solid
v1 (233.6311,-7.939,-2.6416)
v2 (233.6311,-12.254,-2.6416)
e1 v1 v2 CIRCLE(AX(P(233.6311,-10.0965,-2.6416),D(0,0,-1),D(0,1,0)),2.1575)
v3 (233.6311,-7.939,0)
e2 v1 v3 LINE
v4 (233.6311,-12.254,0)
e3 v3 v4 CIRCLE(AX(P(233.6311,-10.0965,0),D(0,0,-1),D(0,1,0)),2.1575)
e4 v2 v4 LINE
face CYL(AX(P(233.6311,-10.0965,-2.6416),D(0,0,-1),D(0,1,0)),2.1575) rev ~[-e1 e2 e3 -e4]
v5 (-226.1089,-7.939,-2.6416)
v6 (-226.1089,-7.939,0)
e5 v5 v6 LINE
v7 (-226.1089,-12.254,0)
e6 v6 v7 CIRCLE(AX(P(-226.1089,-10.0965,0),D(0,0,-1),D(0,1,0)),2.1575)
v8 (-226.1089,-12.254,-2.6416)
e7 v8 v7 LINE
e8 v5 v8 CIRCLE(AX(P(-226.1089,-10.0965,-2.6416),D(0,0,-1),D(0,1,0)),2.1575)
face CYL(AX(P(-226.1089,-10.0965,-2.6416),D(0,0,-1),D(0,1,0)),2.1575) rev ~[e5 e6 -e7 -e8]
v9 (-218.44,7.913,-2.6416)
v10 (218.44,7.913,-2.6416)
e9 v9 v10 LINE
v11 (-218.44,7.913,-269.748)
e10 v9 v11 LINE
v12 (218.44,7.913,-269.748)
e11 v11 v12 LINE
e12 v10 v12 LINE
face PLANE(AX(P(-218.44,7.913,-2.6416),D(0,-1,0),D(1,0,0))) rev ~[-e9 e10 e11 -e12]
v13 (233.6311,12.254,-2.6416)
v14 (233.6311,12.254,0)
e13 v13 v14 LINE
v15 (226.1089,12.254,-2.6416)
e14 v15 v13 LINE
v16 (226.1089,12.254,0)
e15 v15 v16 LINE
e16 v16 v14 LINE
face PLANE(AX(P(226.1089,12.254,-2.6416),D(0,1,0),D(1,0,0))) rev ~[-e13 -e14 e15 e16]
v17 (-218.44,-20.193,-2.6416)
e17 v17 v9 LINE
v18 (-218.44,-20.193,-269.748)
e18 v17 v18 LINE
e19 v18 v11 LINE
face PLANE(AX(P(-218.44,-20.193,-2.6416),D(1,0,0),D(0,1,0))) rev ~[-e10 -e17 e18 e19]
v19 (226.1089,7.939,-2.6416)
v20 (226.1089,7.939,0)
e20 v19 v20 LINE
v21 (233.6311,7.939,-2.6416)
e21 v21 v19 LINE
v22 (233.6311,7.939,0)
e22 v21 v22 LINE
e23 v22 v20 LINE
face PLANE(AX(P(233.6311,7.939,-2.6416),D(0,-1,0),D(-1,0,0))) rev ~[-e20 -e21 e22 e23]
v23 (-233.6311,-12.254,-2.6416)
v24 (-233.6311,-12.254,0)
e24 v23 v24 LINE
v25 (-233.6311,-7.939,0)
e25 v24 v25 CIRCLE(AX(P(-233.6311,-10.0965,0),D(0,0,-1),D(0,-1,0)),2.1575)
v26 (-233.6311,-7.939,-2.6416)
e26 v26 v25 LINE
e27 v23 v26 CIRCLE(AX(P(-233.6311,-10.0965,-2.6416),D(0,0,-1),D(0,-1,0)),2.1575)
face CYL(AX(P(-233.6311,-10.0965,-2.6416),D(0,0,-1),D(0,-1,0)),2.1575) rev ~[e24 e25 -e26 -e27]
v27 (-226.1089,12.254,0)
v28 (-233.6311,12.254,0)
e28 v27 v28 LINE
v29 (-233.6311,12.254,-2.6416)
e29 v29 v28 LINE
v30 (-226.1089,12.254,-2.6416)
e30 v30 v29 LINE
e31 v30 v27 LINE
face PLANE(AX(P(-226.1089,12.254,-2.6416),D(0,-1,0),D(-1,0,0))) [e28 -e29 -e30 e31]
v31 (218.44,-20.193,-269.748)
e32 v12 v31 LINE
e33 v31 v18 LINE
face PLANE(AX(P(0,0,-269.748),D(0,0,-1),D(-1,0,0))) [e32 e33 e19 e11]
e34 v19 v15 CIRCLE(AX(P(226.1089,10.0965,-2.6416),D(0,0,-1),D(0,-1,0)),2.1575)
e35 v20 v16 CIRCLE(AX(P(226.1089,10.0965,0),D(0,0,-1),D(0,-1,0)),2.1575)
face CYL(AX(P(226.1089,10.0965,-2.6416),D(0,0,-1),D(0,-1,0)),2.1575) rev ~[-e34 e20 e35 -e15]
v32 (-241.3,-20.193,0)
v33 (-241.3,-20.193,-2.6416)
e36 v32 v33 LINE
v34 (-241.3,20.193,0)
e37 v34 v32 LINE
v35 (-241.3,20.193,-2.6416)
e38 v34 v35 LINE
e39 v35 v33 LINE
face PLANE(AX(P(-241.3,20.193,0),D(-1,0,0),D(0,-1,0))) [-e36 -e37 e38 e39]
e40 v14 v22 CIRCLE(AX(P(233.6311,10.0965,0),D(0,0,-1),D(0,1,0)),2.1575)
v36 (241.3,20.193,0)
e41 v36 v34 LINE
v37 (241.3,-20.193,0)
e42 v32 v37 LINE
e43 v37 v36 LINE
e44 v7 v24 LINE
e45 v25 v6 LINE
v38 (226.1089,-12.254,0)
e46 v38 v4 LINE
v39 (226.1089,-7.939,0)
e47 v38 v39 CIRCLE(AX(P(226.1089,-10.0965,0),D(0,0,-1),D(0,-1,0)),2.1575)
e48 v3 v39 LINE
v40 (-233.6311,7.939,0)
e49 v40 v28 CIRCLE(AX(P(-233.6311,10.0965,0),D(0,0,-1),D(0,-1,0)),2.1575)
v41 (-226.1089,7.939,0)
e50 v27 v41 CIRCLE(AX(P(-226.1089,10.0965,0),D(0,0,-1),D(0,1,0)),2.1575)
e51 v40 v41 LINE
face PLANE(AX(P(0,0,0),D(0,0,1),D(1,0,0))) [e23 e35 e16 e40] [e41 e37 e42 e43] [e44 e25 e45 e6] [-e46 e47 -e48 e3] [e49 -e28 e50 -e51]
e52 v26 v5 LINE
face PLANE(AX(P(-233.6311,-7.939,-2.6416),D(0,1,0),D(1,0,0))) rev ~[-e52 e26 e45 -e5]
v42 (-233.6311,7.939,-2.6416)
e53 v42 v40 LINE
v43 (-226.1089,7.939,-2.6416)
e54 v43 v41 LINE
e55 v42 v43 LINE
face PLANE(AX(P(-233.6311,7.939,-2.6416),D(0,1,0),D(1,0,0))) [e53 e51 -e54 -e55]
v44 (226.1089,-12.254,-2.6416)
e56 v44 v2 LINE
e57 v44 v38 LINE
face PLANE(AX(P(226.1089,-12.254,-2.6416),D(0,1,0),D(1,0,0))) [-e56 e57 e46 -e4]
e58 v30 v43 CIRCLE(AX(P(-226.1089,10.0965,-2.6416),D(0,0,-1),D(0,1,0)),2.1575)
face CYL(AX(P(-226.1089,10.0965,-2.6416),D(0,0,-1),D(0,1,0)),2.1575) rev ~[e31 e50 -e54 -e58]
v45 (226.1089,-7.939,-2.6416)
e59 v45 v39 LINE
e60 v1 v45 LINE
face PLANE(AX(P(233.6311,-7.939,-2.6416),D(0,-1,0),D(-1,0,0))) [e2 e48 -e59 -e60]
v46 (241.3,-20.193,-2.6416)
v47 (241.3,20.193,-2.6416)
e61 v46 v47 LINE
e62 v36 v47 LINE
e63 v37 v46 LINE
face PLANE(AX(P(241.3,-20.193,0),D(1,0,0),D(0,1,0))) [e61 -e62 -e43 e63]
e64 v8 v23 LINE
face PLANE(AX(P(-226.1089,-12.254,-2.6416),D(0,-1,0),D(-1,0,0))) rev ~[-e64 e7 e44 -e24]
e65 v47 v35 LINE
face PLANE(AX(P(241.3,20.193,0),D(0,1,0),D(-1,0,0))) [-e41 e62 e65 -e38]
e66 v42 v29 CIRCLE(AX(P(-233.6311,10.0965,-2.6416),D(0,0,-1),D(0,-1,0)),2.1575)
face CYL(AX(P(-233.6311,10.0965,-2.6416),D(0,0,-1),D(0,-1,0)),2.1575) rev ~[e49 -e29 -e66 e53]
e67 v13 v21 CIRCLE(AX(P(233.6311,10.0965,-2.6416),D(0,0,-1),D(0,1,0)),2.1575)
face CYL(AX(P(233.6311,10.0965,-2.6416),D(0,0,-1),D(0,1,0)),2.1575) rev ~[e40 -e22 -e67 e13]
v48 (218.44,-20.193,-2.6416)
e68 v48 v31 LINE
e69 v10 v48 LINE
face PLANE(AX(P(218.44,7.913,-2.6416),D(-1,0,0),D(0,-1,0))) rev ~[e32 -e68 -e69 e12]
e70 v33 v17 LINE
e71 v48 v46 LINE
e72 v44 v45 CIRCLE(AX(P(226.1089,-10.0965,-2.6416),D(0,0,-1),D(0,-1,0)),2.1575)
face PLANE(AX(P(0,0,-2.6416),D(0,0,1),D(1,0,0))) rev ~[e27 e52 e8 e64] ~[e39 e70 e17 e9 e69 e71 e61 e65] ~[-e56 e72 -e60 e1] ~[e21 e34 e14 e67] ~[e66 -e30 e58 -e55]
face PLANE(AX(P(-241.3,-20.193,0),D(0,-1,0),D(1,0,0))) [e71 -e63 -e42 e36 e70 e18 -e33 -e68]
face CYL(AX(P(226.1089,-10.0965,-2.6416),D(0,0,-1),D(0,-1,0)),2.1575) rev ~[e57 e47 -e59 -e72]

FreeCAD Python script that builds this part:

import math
import FreeCAD as App
import Part
import Sketcher
Q = App.Units.Quantity


def add_polygon(sketch, points):
    """Adds a closed chain of lines whose ends are joined by coincident constraints."""
    first, n = sketch.GeometryCount, len(points)
    for a, b in zip(points, points[1:] + points[:1]):
        sketch.addGeometry(Part.LineSegment(App.Vector(*a, 0), App.Vector(*b, 0)), False)
    for i in range(n):
        sketch.addConstraint(Sketcher.Constraint("Coincident", first + i, 2, first + (i + 1) % n, 1))

doc = App.newDocument("Part")
body = doc.addObject("PartDesign::Body", "Body")

sketch1 = body.newObject("Sketcher::SketchObject", "Sketch")
sketch1.AttachmentSupport = (doc.getObject("XY_Plane"), [""])
sketch1.MapMode = "FlatFace"
add_polygon(sketch1, [(-241, 20), (-241, -20), (241, -20), (241, 20)])
sketch1.addConstraint(Sketcher.Constraint("Vertical", 0))
sketch1.addConstraint(Sketcher.Constraint("Horizontal", 1))
sketch1.addConstraint(Sketcher.Constraint("Vertical", 2))
sketch1.addConstraint(Sketcher.Constraint("Horizontal", 3))
sketch1.addConstraint(Sketcher.Constraint("Symmetric", 0, 2, 2, 2, -1, 1))
sketch1.addConstraint(Sketcher.Constraint("DistanceX", 1, 1, 1, 2, Q("19 in")))
sketch1.addConstraint(Sketcher.Constraint("DistanceY", 0, 2, 0, 1, Q("1.59 in")))
pad1 = body.newObject("PartDesign::Pad", "Pad")
pad1.Profile = sketch1
pad1.Length = Q("0.104 in")
pad1.Reversed = True

sketch2 = body.newObject("Sketcher::SketchObject", "Sketch001")
sketch2.AttachmentSupport = (doc.getObject("XY_Plane"), [""])
sketch2.MapMode = "FlatFace"
sketch2.AttachmentOffset = App.Placement(App.Vector(0, 0, -0.104 * 25.4), App.Rotation())
add_polygon(sketch2, [(218, 8), (218, -20), (-218, -20), (-218, 8)])
sketch2.addConstraint(Sketcher.Constraint("Vertical", 0))
sketch2.addConstraint(Sketcher.Constraint("Horizontal", 1))
sketch2.addConstraint(Sketcher.Constraint("Vertical", 2))
sketch2.addConstraint(Sketcher.Constraint("Horizontal", 3))
sketch2.addConstraint(Sketcher.Constraint("DistanceX", 1, 2, 1, 1, Q("17.2 in")))
sketch2.addConstraint(Sketcher.Constraint("DistanceX", -1, 1, 0, 2, Q("8.6 in")))
sketch2.addConstraint(Sketcher.Constraint("DistanceY", 0, 2, -1, 1, Q("0.795 in")))
sketch2.addConstraint(Sketcher.Constraint("DistanceY", 0, 2, 0, 1, 28.106))
pad2 = body.newObject("PartDesign::Pad", "Pad001")
pad2.Profile = sketch2
pad2.Length = Q("10.516 in")
pad2.Reversed = True

sketch3 = body.newObject("Sketcher::SketchObject", "Sketch002")
sketch3.AttachmentSupport = (doc.getObject("XY_Plane"), [""])
sketch3.MapMode = "FlatFace"
sketch3.AttachmentOffset = App.Placement(App.Vector(0, 0, -0.104 * 25.4), App.Rotation())
sketch3.addGeometry(Part.ArcOfCircle(Part.Circle(App.Vector(233.6, 10.1, 0), App.Vector(0, 0, 1), 2.2), math.radians(-90), math.radians(90)), False)
sketch3.addGeometry(Part.LineSegment(App.Vector(233.6, 7.9, 0), App.Vector(226.1, 7.9, 0)), False)
sketch3.addGeometry(Part.ArcOfCircle(Part.Circle(App.Vector(226.1, 10.1, 0), App.Vector(0, 0, 1), 2.2), math.radians(90), math.radians(270)), False)
sketch3.addGeometry(Part.LineSegment(App.Vector(226.1, 12.3, 0), App.Vector(233.6, 12.3, 0)), False)
sketch3.addGeometry(Part.LineSegment(App.Vector(226.1, -7.9, 0), App.Vector(233.6, -7.9, 0)), False)
sketch3.addGeometry(Part.ArcOfCircle(Part.Circle(App.Vector(233.6, -10.1, 0), App.Vector(0, 0, 1), 2.2), math.radians(-90), math.radians(90)), False)
sketch3.addGeometry(Part.LineSegment(App.Vector(233.6, -12.3, 0), App.Vector(226.1, -12.3, 0)), False)
sketch3.addGeometry(Part.ArcOfCircle(Part.Circle(App.Vector(226.1, -10.1, 0), App.Vector(0, 0, 1), 2.2), math.radians(90), math.radians(270)), False)
sketch3.addGeometry(Part.LineSegment(App.Vector(-226.1, 7.9, 0), App.Vector(-233.6, 7.9, 0)), False)
sketch3.addGeometry(Part.ArcOfCircle(Part.Circle(App.Vector(-233.6, 10.1, 0), App.Vector(0, 0, 1), 2.2), math.radians(90), math.radians(270)), False)
sketch3.addGeometry(Part.LineSegment(App.Vector(-233.6, 12.3, 0), App.Vector(-226.1, 12.3, 0)), False)
sketch3.addGeometry(Part.ArcOfCircle(Part.Circle(App.Vector(-226.1, 10.1, 0), App.Vector(0, 0, 1), 2.2), math.radians(-90), math.radians(90)), False)
sketch3.addGeometry(Part.LineSegment(App.Vector(-233.6, -7.9, 0), App.Vector(-226.1, -7.9, 0)), False)
sketch3.addGeometry(Part.ArcOfCircle(Part.Circle(App.Vector(-226.1, -10.1, 0), App.Vector(0, 0, 1), 2.2), math.radians(-90), math.radians(90)), False)
sketch3.addGeometry(Part.LineSegment(App.Vector(-226.1, -12.3, 0), App.Vector(-233.6, -12.3, 0)), False)
sketch3.addGeometry(Part.ArcOfCircle(Part.Circle(App.Vector(-233.6, -10.1, 0), App.Vector(0, 0, 1), 2.2), math.radians(90), math.radians(270)), False)
sketch3.addConstraint(Sketcher.Constraint("Tangent", 0, 1, 1, 1))
sketch3.addConstraint(Sketcher.Constraint("Tangent", 1, 2, 2, 2))
sketch3.addConstraint(Sketcher.Constraint("Tangent", 2, 1, 3, 1))
sketch3.addConstraint(Sketcher.Constraint("Tangent", 3, 2, 0, 2))
sketch3.addConstraint(Sketcher.Constraint("Tangent", 4, 2, 5, 2))
sketch3.addConstraint(Sketcher.Constraint("Tangent", 5, 1, 6, 1))
sketch3.addConstraint(Sketcher.Constraint("Tangent", 6, 2, 7, 2))
sketch3.addConstraint(Sketcher.Constraint("Tangent", 7, 1, 4, 1))
sketch3.addConstraint(Sketcher.Constraint("Tangent", 8, 2, 9, 2))
sketch3.addConstraint(Sketcher.Constraint("Tangent", 9, 1, 10, 1))
sketch3.addConstraint(Sketcher.Constraint("Tangent", 10, 2, 11, 2))
sketch3.addConstraint(Sketcher.Constraint("Tangent", 11, 1, 8, 1))
sketch3.addConstraint(Sketcher.Constraint("Tangent", 12, 2, 13, 2))
sketch3.addConstraint(Sketcher.Constraint("Tangent", 13, 1, 14, 1))
sketch3.addConstraint(Sketcher.Constraint("Tangent", 14, 2, 15, 2))
sketch3.addConstraint(Sketcher.Constraint("Tangent", 15, 1, 12, 1))
sketch3.addConstraint(Sketcher.Constraint("Horizontal", 1))
sketch3.addConstraint(Sketcher.Constraint("Horizontal", 3))
sketch3.addConstraint(Sketcher.Constraint("Horizontal", 4))
sketch3.addConstraint(Sketcher.Constraint("Horizontal", 6))
sketch3.addConstraint(Sketcher.Constraint("Horizontal", 8))
sketch3.addConstraint(Sketcher.Constraint("Horizontal", 10))
sketch3.addConstraint(Sketcher.Constraint("Horizontal", 12))
sketch3.addConstraint(Sketcher.Constraint("Horizontal", 14))
sketch3.addConstraint(Sketcher.Constraint("Equal", 2, 5))
sketch3.addConstraint(Sketcher.Constraint("Equal", 7, 9))
sketch3.addConstraint(Sketcher.Constraint("Equal", 11, 13))
sketch3.addConstraint(Sketcher.Constraint("Symmetric", 5, 3, 9, 3, -1, 1))
sketch3.addConstraint(Sketcher.Constraint("Symmetric", 2, 3, 13, 3, -1, 1))
sketch3.addConstraint(Sketcher.Constraint("Symmetric", 0, 3, 9, 3, -2))
sketch3.addConstraint(Sketcher.Constraint("Vertical", 2, 3, 7, 3))
sketch3.addConstraint(Sketcher.Constraint("Vertical", 11, 3, 13, 3))
sketch3.addConstraint(Sketcher.Constraint("Vertical", 9, 3, 15, 3))
sketch3.addConstraint(Sketcher.Constraint("DistanceY", -1, 1, 0, 3, Q("0.3975 in")))
sketch3.addConstraint(Sketcher.Constraint("DistanceX", 9, 3, 2, 3, Q("18.1 in")))
sketch3.addConstraint(Sketcher.Constraint("Radius", 0, 2.1575))
sketch3.addConstraint(Sketcher.Constraint("DistanceX", 1, 2, 1, 1, 7.5222))
pocket1 = body.newObject("PartDesign::Pocket", "Pocket")
pocket1.Profile = sketch3
pocket1.Length = Q("0.104 in")
pocket1.Reversed = True

doc.recompute()
